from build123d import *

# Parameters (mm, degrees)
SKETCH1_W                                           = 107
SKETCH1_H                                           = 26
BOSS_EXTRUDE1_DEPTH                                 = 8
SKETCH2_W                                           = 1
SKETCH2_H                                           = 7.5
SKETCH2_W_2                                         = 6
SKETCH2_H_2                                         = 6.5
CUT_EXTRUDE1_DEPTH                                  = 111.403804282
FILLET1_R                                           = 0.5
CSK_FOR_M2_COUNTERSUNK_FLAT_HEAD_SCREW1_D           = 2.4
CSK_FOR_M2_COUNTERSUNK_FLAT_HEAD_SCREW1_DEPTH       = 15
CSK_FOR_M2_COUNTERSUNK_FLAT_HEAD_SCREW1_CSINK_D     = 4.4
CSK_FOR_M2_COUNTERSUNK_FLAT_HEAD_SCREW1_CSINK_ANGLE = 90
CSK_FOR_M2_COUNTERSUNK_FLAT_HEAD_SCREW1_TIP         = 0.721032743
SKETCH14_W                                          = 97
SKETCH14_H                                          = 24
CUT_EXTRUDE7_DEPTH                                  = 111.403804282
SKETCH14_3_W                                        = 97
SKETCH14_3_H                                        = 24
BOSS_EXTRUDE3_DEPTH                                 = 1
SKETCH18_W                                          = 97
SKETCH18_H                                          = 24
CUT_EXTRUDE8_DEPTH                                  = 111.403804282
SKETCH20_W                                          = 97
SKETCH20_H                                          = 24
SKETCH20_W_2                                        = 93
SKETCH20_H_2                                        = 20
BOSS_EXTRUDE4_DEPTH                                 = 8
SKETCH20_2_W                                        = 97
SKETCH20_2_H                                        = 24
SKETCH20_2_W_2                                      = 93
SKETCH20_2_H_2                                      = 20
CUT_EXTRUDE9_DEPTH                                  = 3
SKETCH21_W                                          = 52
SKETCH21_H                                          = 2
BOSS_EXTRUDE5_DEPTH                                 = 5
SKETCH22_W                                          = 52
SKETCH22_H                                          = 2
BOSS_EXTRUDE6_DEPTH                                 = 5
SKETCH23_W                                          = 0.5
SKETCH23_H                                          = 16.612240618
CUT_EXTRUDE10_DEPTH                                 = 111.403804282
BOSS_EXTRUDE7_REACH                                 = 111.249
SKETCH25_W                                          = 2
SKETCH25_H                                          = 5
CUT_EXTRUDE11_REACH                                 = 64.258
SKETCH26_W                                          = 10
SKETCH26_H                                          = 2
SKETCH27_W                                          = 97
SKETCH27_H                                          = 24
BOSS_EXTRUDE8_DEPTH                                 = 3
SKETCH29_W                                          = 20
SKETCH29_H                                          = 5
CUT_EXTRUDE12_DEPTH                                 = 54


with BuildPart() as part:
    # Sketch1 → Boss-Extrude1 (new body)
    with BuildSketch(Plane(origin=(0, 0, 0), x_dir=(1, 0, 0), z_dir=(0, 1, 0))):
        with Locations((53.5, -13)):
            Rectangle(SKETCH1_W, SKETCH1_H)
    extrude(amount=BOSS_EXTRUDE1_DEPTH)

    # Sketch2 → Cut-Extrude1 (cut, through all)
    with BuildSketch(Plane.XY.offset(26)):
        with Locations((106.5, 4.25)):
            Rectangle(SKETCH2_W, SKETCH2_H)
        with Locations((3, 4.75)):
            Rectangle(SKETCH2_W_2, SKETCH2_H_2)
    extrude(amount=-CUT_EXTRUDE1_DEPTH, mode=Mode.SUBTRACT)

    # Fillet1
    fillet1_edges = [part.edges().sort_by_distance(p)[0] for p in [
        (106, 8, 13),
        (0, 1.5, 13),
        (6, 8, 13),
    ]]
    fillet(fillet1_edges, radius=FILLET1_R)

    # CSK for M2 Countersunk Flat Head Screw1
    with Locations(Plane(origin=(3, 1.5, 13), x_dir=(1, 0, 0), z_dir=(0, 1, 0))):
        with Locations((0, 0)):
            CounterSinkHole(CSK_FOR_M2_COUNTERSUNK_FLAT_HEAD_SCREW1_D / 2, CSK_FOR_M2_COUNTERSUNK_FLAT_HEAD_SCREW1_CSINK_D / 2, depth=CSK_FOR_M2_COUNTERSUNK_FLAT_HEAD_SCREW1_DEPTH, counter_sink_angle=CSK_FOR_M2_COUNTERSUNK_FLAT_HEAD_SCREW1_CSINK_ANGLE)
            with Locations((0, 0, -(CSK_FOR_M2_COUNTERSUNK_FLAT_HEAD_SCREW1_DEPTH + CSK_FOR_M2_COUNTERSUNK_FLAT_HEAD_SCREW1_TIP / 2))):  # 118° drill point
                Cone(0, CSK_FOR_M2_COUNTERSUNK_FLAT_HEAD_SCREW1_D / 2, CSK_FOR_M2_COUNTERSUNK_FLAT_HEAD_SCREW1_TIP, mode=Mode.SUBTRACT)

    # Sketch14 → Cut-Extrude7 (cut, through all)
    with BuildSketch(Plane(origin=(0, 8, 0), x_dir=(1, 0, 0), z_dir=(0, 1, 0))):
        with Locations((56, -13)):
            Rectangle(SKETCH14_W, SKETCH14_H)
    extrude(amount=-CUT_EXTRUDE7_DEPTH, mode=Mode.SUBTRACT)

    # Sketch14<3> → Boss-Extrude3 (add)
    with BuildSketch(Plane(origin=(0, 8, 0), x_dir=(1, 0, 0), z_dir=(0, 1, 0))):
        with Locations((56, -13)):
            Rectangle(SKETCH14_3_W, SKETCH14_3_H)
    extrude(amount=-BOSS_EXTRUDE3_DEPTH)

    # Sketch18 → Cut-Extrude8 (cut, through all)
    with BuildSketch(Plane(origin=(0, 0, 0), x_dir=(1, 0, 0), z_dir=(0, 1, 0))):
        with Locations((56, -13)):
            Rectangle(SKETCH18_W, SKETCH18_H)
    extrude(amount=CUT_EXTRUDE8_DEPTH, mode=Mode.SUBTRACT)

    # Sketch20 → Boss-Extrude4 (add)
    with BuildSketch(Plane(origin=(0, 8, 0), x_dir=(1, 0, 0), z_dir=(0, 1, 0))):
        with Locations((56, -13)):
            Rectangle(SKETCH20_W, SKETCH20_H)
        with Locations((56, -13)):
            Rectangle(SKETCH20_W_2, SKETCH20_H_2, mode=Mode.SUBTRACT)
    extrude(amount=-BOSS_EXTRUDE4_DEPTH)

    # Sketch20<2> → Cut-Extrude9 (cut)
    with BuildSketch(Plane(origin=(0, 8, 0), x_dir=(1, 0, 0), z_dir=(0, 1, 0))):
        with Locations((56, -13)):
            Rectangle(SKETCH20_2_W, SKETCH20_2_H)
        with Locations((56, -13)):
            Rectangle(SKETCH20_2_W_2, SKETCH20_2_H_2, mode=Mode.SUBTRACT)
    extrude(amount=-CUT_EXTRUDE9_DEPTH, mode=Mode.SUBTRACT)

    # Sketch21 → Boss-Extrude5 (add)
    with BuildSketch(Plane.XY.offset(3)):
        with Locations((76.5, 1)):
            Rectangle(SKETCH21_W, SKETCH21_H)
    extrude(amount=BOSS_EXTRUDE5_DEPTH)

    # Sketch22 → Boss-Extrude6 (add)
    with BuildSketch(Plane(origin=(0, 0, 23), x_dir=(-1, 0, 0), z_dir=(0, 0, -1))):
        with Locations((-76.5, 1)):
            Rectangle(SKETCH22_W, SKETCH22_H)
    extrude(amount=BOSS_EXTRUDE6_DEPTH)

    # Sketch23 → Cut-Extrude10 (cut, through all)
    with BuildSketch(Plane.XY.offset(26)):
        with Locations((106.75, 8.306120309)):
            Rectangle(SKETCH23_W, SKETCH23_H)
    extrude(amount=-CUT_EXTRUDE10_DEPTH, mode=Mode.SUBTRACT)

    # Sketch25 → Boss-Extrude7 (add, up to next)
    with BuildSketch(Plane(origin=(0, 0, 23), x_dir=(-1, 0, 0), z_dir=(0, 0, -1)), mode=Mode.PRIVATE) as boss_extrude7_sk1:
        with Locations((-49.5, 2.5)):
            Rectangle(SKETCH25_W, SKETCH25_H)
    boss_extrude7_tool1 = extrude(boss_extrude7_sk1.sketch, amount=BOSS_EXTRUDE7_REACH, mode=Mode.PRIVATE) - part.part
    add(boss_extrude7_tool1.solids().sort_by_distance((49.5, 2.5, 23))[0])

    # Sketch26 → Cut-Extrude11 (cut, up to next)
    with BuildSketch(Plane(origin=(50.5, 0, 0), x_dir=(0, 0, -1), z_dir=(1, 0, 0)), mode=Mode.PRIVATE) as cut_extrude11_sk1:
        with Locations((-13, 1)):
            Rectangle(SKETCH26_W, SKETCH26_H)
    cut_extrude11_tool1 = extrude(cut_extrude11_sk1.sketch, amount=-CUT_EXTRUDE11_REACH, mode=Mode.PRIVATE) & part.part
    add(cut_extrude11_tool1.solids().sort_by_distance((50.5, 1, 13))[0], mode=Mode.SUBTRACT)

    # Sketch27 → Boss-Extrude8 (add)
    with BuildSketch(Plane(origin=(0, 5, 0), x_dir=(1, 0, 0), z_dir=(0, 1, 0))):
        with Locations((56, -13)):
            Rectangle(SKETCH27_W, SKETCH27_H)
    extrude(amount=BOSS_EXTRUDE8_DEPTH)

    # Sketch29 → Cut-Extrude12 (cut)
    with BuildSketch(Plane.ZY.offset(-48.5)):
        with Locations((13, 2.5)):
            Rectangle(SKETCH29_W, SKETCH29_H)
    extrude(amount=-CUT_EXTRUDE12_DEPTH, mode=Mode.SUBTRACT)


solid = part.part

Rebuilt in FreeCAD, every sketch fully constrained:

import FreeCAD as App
import Part
import Sketcher
from FreeCAD import Vector


def edges_at(feature, points):
    """Names of the edges that pass closest to the given points."""
    edges = feature.Shape.Edges
    near = lambda p: min(range(len(edges)), key=lambda i: edges[i].distToShape(Part.Vertex(*p))[0])
    return sorted({f"Edge{near(p) + 1}" for p in points})


def add_polygon(sketch, points):
    """Adds a closed chain of lines whose ends are joined by coincident constraints."""
    first, n = sketch.GeometryCount, len(points)
    for a, b in zip(points, points[1:] + points[:1]):
        sketch.addGeometry(Part.LineSegment(App.Vector(*a, 0), App.Vector(*b, 0)), False)
    for i in range(n):
        sketch.addConstraint(Sketcher.Constraint("Coincident", first + i, 2, first + (i + 1) % n, 1))

doc = App.newDocument("Part")
body = doc.addObject("PartDesign::Body", "Body")

# Sketch on XZ plane
sketch1 = body.newObject("Sketcher::SketchObject", "Sketch")
sketch1.AttachmentSupport = (doc.getObject("XZ_Plane"), [""])
sketch1.MapMode = "FlatFace"
add_polygon(sketch1, [(0, 0), (0, 26), (107, 26), (107, 0)])  # lines 0-3
sketch1.addConstraint([
    Sketcher.Constraint("Vertical", 0),
    Sketcher.Constraint("Horizontal", 1),
    Sketcher.Constraint("Vertical", 2),
    Sketcher.Constraint("Horizontal", 3),
    Sketcher.Constraint("Coincident", 3, 2, -1, 1),
    Sketcher.Constraint("DistanceX", 1, 1, 1, 2, 107.0),
    Sketcher.Constraint("DistanceY", 0, 1, 0, 2, 26.0),
])
pad1 = body.newObject("PartDesign::Pad", "Pad")
pad1.Profile = sketch1
pad1.Length = 8
pad1.Reversed = True

# Sketch on XY plane
sketch2 = body.newObject("Sketcher::SketchObject", "Sketch001")
sketch2.AttachmentSupport = (doc.getObject("XY_Plane"), [""])
sketch2.MapMode = "FlatFace"
sketch2.AttachmentOffset = App.Placement(Vector(0, 0, 26), App.Rotation())
add_polygon(sketch2, [(106, 8), (106, 0.5), (107, 0.5), (107, 8)])  # lines 0-3
add_polygon(sketch2, [(0, 8), (0, 1.5), (6, 1.5), (6, 8)])  # lines 4-7
sketch2.addConstraint([
    Sketcher.Constraint("Vertical", 0),
    Sketcher.Constraint("Horizontal", 1),
    Sketcher.Constraint("Vertical", 2),
    Sketcher.Constraint("Horizontal", 3),
    Sketcher.Constraint("Vertical", 4),
    Sketcher.Constraint("Horizontal", 5),
    Sketcher.Constraint("Vertical", 6),
    Sketcher.Constraint("Horizontal", 7),
    Sketcher.Constraint("PointOnObject", 4, 2, -2),
    Sketcher.Constraint("Horizontal", 3, 2, 6, 2),
    Sketcher.Constraint("DistanceX", 1, 1, 1, 2, 1.0),
    Sketcher.Constraint("DistanceX", 5, 1, 5, 2, 6.0),
    Sketcher.Constraint("DistanceY", 0, 2, 0, 1, 7.5),
    Sketcher.Constraint("DistanceY", 4, 2, 4, 1, 6.5),
    Sketcher.Constraint("DistanceX", -1, 1, 0, 2, 106.0),
    Sketcher.Constraint("DistanceY", -1, 1, 2, 2, 8.0),
])
pocket1 = body.newObject("PartDesign::Pocket", "Pocket")
pocket1.Profile = sketch2
pocket1.Type = "ThroughAll"
doc.recompute()

fillet = body.newObject("PartDesign::Fillet", "Fillet")
fillet.Base = (pocket1, edges_at(pocket1, [(106, 8, 13), (0, 1.5, 13), (6, 8, 13)]))
fillet.Radius = 0.5

# Sketch on XZ plane
sketch3 = body.newObject("Sketcher::SketchObject", "Sketch002")
sketch3.AttachmentSupport = (doc.getObject("XZ_Plane"), [""])
sketch3.MapMode = "FlatFace"
sketch3.AttachmentOffset = App.Placement(Vector(0, 0, -1.5), App.Rotation())
sketch3.addGeometry(Part.Circle(Vector(3, 13, 0), Vector(0, 0, 1), 1.2), False)
sketch3.addConstraint([
    Sketcher.Constraint("Diameter", 0, 2.4),
    Sketcher.Constraint("DistanceX", -1, 1, 0, 3, 3.0),
    Sketcher.Constraint("DistanceY", -1, 1, 0, 3, 13.0),
])
doc.recompute()
hole = body.newObject("PartDesign::Hole", "Hole")
hole.Profile = sketch3
hole.ThreadType = "None"
hole.Diameter = 2.4
hole.DepthType = "Dimension"
hole.Depth = 15
hole.DrillPoint = "Angled"
hole.DrillPointAngle = 118
hole.HoleCutType = "Countersink"
hole.HoleCutDiameter = 4.4
hole.HoleCutCountersinkAngle = 90
hole.Reversed = True

# Sketch on XZ plane
sketch4 = body.newObject("Sketcher::SketchObject", "Sketch003")
sketch4.AttachmentSupport = (doc.getObject("XZ_Plane"), [""])
sketch4.MapMode = "FlatFace"
sketch4.AttachmentOffset = App.Placement(Vector(0, 0, -8), App.Rotation())
add_polygon(sketch4, [(7.5, 1), (7.5, 25), (104.5, 25), (104.5, 1)])  # lines 0-3
sketch4.addConstraint([
    Sketcher.Constraint("Vertical", 0),
    Sketcher.Constraint("Horizontal", 1),
    Sketcher.Constraint("Vertical", 2),
    Sketcher.Constraint("Horizontal", 3),
    Sketcher.Constraint("DistanceX", 1, 1, 1, 2, 97.0),
    Sketcher.Constraint("DistanceY", 0, 1, 0, 2, 24.0),
    Sketcher.Constraint("DistanceY", -1, 1, 0, 2, 25.0),
    Sketcher.Constraint("DistanceX", -1, 1, 0, 2, 7.5),
])
pocket2 = body.newObject("PartDesign::Pocket", "Pocket001")
pocket2.Profile = sketch4
pocket2.Type = "ThroughAll"
pocket2.Reversed = True

# Sketch on XZ plane
sketch5 = body.newObject("Sketcher::SketchObject", "Sketch004")
sketch5.AttachmentSupport = (doc.getObject("XZ_Plane"), [""])
sketch5.MapMode = "FlatFace"
sketch5.AttachmentOffset = App.Placement(Vector(0, 0, -8), App.Rotation())
add_polygon(sketch5, [(7.5, 1), (7.5, 25), (104.5, 25), (104.5, 1)])  # lines 0-3
sketch5.addConstraint([
    Sketcher.Constraint("Vertical", 0),
    Sketcher.Constraint("Horizontal", 1),
    Sketcher.Constraint("Vertical", 2),
    Sketcher.Constraint("Horizontal", 3),
    Sketcher.Constraint("DistanceX", 1, 1, 1, 2, 97.0),
    Sketcher.Constraint("DistanceY", 0, 1, 0, 2, 24.0),
    Sketcher.Constraint("DistanceY", -1, 1, 0, 2, 25.0),
    Sketcher.Constraint("DistanceX", -1, 1, 0, 2, 7.5),
])
pad2 = body.newObject("PartDesign::Pad", "Pad001")
pad2.Profile = sketch5
pad2.Length = 1

# Sketch on XZ plane
sketch6 = body.newObject("Sketcher::SketchObject", "Sketch005")
sketch6.AttachmentSupport = (doc.getObject("XZ_Plane"), [""])
sketch6.MapMode = "FlatFace"
add_polygon(sketch6, [(7.5, 1), (7.5, 25), (104.5, 25), (104.5, 1)])  # lines 0-3
sketch6.addConstraint([
    Sketcher.Constraint("Vertical", 0),
    Sketcher.Constraint("Horizontal", 1),
    Sketcher.Constraint("Vertical", 2),
    Sketcher.Constraint("Horizontal", 3),
    Sketcher.Constraint("DistanceX", 1, 1, 1, 2, 97.0),
    Sketcher.Constraint("DistanceY", 0, 1, 0, 2, 24.0),
    Sketcher.Constraint("DistanceY", -1, 1, 0, 2, 25.0),
    Sketcher.Constraint("DistanceX", -1, 1, 0, 2, 7.5),
])
pocket3 = body.newObject("PartDesign::Pocket", "Pocket002")
pocket3.Profile = sketch6
pocket3.Type = "ThroughAll"

# Sketch on XZ plane
sketch7 = body.newObject("Sketcher::SketchObject", "Sketch006")
sketch7.AttachmentSupport = (doc.getObject("XZ_Plane"), [""])
sketch7.MapMode = "FlatFace"
sketch7.AttachmentOffset = App.Placement(Vector(0, 0, -8), App.Rotation())
add_polygon(sketch7, [(7.5, 1), (7.5, 25), (104.5, 25), (104.5, 1)])  # lines 0-3
add_polygon(sketch7, [(102.5, 23), (9.5, 23), (9.5, 3), (102.5, 3)])  # lines 4-7
sketch7.addConstraint([
    Sketcher.Constraint("Vertical", 0),
    Sketcher.Constraint("Horizontal", 1),
    Sketcher.Constraint("Vertical", 2),
    Sketcher.Constraint("Horizontal", 3),
    Sketcher.Constraint("Horizontal", 4),
    Sketcher.Constraint("Vertical", 5),
    Sketcher.Constraint("Horizontal", 6),
    Sketcher.Constraint("Vertical", 7),
    Sketcher.Constraint("DistanceX", 1, 1, 1, 2, 97.0),
    Sketcher.Constraint("DistanceX", 4, 2, 4, 1, 93.0),
    Sketcher.Constraint("DistanceY", 0, 1, 0, 2, 24.0),
    Sketcher.Constraint("DistanceY", 5, 2, 5, 1, 20.0),
    Sketcher.Constraint("DistanceY", -1, 1, 0, 2, 25.0),
    Sketcher.Constraint("DistanceY", -1, 1, 4, 2, 23.0),
    Sketcher.Constraint("DistanceX", 0, 2, 4, 2, 2.0),
    Sketcher.Constraint("DistanceX", -1, 1, 0, 2, 7.5),
])
pad3 = body.newObject("PartDesign::Pad", "Pad002")
pad3.Profile = sketch7
pad3.Length = 8

# Sketch on XZ plane
sketch8 = body.newObject("Sketcher::SketchObject", "Sketch007")
sketch8.AttachmentSupport = (doc.getObject("XZ_Plane"), [""])
sketch8.MapMode = "FlatFace"
sketch8.AttachmentOffset = App.Placement(Vector(0, 0, -8), App.Rotation())
add_polygon(sketch8, [(7.5, 1), (7.5, 25), (104.5, 25), (104.5, 1)])  # lines 0-3
add_polygon(sketch8, [(102.5, 23), (9.5, 23), (9.5, 3), (102.5, 3)])  # lines 4-7
sketch8.addConstraint([
    Sketcher.Constraint("Vertical", 0),
    Sketcher.Constraint("Horizontal", 1),
    Sketcher.Constraint("Vertical", 2),
    Sketcher.Constraint("Horizontal", 3),
    Sketcher.Constraint("Horizontal", 4),
    Sketcher.Constraint("Vertical", 5),
    Sketcher.Constraint("Horizontal", 6),
    Sketcher.Constraint("Vertical", 7),
    Sketcher.Constraint("DistanceX", 1, 1, 1, 2, 97.0),
    Sketcher.Constraint("DistanceX", 4, 2, 4, 1, 93.0),
    Sketcher.Constraint("DistanceY", 0, 1, 0, 2, 24.0),
    Sketcher.Constraint("DistanceY", 5, 2, 5, 1, 20.0),
    Sketcher.Constraint("DistanceY", -1, 1, 0, 2, 25.0),
    Sketcher.Constraint("DistanceY", -1, 1, 4, 2, 23.0),
    Sketcher.Constraint("DistanceX", 0, 2, 4, 2, 2.0),
    Sketcher.Constraint("DistanceX", -1, 1, 0, 2, 7.5),
])
pocket4 = body.newObject("PartDesign::Pocket", "Pocket003")
pocket4.Profile = sketch8
pocket4.Length = 3
pocket4.Reversed = True

# Sketch on XY plane
sketch9 = body.newObject("Sketcher::SketchObject", "Sketch008")
sketch9.AttachmentSupport = (doc.getObject("XY_Plane"), [""])
sketch9.MapMode = "FlatFace"
sketch9.AttachmentOffset = App.Placement(Vector(0, 0, 3), App.Rotation())
add_polygon(sketch9, [(50.5, 2), (50.5, 0), (102.5, 0), (102.5, 2)])  # lines 0-3
sketch9.addConstraint([
    Sketcher.Constraint("Vertical", 0),
    Sketcher.Constraint("Horizontal", 1),
    Sketcher.Constraint("Vertical", 2),
    Sketcher.Constraint("Horizontal", 3),
    Sketcher.Constraint("PointOnObject", 0, 2, -1),
    Sketcher.Constraint("DistanceX", 1, 1, 1, 2, 52.0),
    Sketcher.Constraint("DistanceY", 0, 2, 0, 1, 2.0),
    Sketcher.Constraint("DistanceX", -1, 1, 0, 2, 50.5),
])
pad4 = body.newObject("PartDesign::Pad", "Pad003")
pad4.Profile = sketch9
pad4.Length = 5

# Sketch on XY plane
sketch10 = body.newObject("Sketcher::SketchObject", "Sketch009")
sketch10.AttachmentSupport = (doc.getObject("XY_Plane"), [""])
sketch10.MapMode = "FlatFace"
sketch10.AttachmentOffset = App.Placement(Vector(0, 0, 23), App.Rotation())
add_polygon(sketch10, [(102.5, 2), (102.5, 0), (50.5, 0), (50.5, 2)])  # lines 0-3
sketch10.addConstraint([
    Sketcher.Constraint("Vertical", 0),
    Sketcher.Constraint("Horizontal", 1),
    Sketcher.Constraint("Vertical", 2),
    Sketcher.Constraint("Horizontal", 3),
    Sketcher.Constraint("PointOnObject", 0, 2, -1),
    Sketcher.Constraint("DistanceX", 1, 2, 1, 1, 52.0),
    Sketcher.Constraint("DistanceY", 0, 2, 0, 1, 2.0),
    Sketcher.Constraint("DistanceX", -1, 1, 0, 2, 102.5),
])
pad5 = body.newObject("PartDesign::Pad", "Pad004")
pad5.Profile = sketch10
pad5.Length = 5
pad5.Reversed = True

# Sketch on XY plane
sketch11 = body.newObject("Sketcher::SketchObject", "Sketch010")
sketch11.AttachmentSupport = (doc.getObject("XY_Plane"), [""])
sketch11.MapMode = "FlatFace"
sketch11.AttachmentOffset = App.Placement(Vector(0, 0, 26), App.Rotation())
add_polygon(sketch11, [(106.5, 16.612241), (106.5, 0), (107, 0), (107, 16.612241)])  # lines 0-3
sketch11.addConstraint([
    Sketcher.Constraint("Vertical", 0),
    Sketcher.Constraint("Horizontal", 1),
    Sketcher.Constraint("Vertical", 2),
    Sketcher.Constraint("Horizontal", 3),
    Sketcher.Constraint("PointOnObject", 0, 2, -1),
    Sketcher.Constraint("DistanceX", 1, 1, 1, 2, 0.5),
    Sketcher.Constraint("DistanceX", -1, 1, 1, 2, 107.0),
    Sketcher.Constraint("DistanceY", 0, 2, 0, 1, 16.612241),
])
pocket5 = body.newObject("PartDesign::Pocket", "Pocket004")
pocket5.Profile = sketch11
pocket5.Type = "ThroughAll"

# Sketch on XY plane
sketch12 = body.newObject("Sketcher::SketchObject", "Sketch011")
sketch12.AttachmentSupport = (doc.getObject("XY_Plane"), [""])
sketch12.MapMode = "FlatFace"
sketch12.AttachmentOffset = App.Placement(Vector(0, 0, 23), App.Rotation())
add_polygon(sketch12, [(50.5, 5), (50.5, 0), (48.5, 0), (48.5, 5)])  # lines 0-3
sketch12.addConstraint([
    Sketcher.Constraint("Vertical", 0),
    Sketcher.Constraint("Horizontal", 1),
    Sketcher.Constraint("Vertical", 2),
    Sketcher.Constraint("Horizontal", 3),
    Sketcher.Constraint("PointOnObject", 0, 2, -1),
    Sketcher.Constraint("DistanceX", 1, 2, 1, 1, 2.0),
    Sketcher.Constraint("DistanceY", 0, 2, 0, 1, 5.0),
    Sketcher.Constraint("DistanceX", -1, 1, 0, 2, 50.5),
])
pad6 = body.newObject("PartDesign::Pad", "Pad005")
pad6.Profile = sketch12
pad6.Type = "UpToFirst"
pad6.Reversed = True

# Sketch on YZ plane
sketch13 = body.newObject("Sketcher::SketchObject", "Sketch012")
sketch13.AttachmentSupport = (doc.getObject("YZ_Plane"), [""])
sketch13.MapMode = "FlatFace"
sketch13.AttachmentOffset = App.Placement(Vector(0, 0, 50.5), App.Rotation())
add_polygon(sketch13, [(2, 18), (0, 18), (0, 8), (2, 8)])  # lines 0-3
sketch13.addConstraint([
    Sketcher.Constraint("Horizontal", 0),
    Sketcher.Constraint("Vertical", 1),
    Sketcher.Constraint("Horizontal", 2),
    Sketcher.Constraint("Vertical", 3),
    Sketcher.Constraint("PointOnObject", 0, 2, -2),
    Sketcher.Constraint("DistanceX", 0, 2, 0, 1, 2.0),
    Sketcher.Constraint("DistanceY", 1, 2, 1, 1, 10.0),
    Sketcher.Constraint("DistanceY", -1, 1, 0, 2, 18.0),
])
pocket6 = body.newObject("PartDesign::Pocket", "Pocket005")
pocket6.Profile = sketch13
pocket6.Type = "UpToFirst"

# Sketch on XZ plane
sketch14 = body.newObject("Sketcher::SketchObject", "Sketch013")
sketch14.AttachmentSupport = (doc.getObject("XZ_Plane"), [""])
sketch14.MapMode = "FlatFace"
sketch14.AttachmentOffset = App.Placement(Vector(0, 0, -5), App.Rotation())
add_polygon(sketch14, [(7.5, 1), (7.5, 25), (104.5, 25), (104.5, 1)])  # lines 0-3
sketch14.addConstraint([
    Sketcher.Constraint("Vertical", 0),
    Sketcher.Constraint("Horizontal", 1),
    Sketcher.Constraint("Vertical", 2),
    Sketcher.Constraint("Horizontal", 3),
    Sketcher.Constraint("DistanceX", 1, 1, 1, 2, 97.0),
    Sketcher.Constraint("DistanceY", 0, 1, 0, 2, 24.0),
    Sketcher.Constraint("DistanceY", -1, 1, 0, 2, 25.0),
    Sketcher.Constraint("DistanceX", -1, 1, 0, 2, 7.5),
])
pad7 = body.newObject("PartDesign::Pad", "Pad006")
pad7.Profile = sketch14
pad7.Length = 3
pad7.Reversed = True

# Sketch on YZ plane
sketch15 = body.newObject("Sketcher::SketchObject", "Sketch014")
sketch15.AttachmentSupport = (doc.getObject("YZ_Plane"), [""])
sketch15.MapMode = "FlatFace"
sketch15.AttachmentOffset = App.Placement(Vector(0, 0, 48.5), App.Rotation())
add_polygon(sketch15, [(5, 3), (0, 3), (0, 23), (5, 23)])  # lines 0-3
sketch15.addConstraint([
    Sketcher.Constraint("Horizontal", 0),
    Sketcher.Constraint("Vertical", 1),
    Sketcher.Constraint("Horizontal", 2),
    Sketcher.Constraint("Vertical", 3),
    Sketcher.Constraint("PointOnObject", 0, 2, -2),
    Sketcher.Constraint("DistanceX", 0, 2, 0, 1, 5.0),
    Sketcher.Constraint("DistanceY", 1, 1, 1, 2, 20.0),
    Sketcher.Constraint("DistanceY", -1, 1, 0, 2, 3.0),
])
pocket7 = body.newObject("PartDesign::Pocket", "Pocket006")
pocket7.Profile = sketch15
pocket7.Length = 54
pocket7.Reversed = True

doc.recompute()
